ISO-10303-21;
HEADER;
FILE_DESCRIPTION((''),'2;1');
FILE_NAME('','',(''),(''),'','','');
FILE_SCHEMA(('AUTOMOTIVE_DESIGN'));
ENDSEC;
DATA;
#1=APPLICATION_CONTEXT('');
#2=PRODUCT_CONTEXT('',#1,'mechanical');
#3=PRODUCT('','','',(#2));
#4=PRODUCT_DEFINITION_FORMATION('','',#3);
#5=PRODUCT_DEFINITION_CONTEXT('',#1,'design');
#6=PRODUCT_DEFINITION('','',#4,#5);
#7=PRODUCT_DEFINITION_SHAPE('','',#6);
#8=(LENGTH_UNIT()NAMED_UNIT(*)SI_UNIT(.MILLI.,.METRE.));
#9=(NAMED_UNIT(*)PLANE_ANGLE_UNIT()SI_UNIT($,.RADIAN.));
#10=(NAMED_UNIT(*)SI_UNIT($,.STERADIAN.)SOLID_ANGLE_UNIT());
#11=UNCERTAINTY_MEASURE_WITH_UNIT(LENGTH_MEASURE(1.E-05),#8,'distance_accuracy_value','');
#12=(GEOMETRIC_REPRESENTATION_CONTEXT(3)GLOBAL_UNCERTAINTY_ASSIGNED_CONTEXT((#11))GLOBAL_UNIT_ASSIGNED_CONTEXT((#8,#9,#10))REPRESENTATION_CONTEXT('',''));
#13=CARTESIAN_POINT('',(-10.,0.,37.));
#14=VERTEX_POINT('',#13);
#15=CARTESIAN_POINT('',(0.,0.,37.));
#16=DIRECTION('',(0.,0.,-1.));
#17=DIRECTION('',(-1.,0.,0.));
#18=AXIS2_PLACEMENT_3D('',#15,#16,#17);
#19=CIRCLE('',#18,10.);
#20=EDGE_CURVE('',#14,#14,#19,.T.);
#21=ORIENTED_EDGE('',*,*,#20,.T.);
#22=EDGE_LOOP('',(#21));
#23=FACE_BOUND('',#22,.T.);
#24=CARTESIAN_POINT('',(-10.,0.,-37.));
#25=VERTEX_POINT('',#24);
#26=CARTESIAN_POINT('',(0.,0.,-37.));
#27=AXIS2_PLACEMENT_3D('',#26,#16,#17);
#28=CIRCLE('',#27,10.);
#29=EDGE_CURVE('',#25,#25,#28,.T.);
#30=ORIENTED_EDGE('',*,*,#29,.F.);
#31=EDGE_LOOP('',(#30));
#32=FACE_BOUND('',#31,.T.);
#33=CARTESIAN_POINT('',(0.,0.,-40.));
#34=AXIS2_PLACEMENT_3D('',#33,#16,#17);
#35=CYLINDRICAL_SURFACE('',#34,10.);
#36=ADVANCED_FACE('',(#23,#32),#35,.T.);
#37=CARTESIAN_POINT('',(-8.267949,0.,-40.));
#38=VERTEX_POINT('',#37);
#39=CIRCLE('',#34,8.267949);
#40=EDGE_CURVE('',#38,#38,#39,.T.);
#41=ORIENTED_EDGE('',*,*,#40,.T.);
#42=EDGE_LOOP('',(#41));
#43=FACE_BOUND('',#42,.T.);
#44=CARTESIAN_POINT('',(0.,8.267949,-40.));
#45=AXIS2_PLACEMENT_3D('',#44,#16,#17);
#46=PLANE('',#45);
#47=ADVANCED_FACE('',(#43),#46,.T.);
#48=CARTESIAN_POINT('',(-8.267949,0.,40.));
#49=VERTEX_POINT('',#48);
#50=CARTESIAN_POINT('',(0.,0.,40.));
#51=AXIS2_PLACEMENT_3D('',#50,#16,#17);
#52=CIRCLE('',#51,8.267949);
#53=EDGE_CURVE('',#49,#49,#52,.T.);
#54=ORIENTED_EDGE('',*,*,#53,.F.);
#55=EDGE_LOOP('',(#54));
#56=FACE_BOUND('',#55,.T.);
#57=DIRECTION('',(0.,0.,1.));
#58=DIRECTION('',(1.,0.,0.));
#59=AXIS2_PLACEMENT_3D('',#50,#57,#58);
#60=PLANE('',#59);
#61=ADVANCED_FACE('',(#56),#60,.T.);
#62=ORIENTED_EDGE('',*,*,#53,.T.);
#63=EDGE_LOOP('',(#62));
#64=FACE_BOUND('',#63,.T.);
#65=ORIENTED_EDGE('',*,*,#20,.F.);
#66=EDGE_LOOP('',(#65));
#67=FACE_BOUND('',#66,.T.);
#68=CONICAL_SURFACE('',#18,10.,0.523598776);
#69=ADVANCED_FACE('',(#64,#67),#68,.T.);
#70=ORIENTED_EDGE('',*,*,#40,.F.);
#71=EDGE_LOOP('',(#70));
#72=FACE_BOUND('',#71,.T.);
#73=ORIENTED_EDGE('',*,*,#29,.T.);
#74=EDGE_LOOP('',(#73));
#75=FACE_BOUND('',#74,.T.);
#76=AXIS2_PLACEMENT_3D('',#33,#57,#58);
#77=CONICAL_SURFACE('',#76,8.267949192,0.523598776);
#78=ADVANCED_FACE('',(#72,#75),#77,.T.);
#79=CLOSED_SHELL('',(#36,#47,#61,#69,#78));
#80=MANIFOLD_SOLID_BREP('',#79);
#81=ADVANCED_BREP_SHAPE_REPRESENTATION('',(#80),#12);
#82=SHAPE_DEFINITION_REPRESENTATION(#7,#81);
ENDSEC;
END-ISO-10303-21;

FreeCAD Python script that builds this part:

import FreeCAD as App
import Part
import Sketcher
from FreeCAD import Vector
Q = App.Units.Quantity

doc = App.newDocument("Part")
body = doc.addObject("PartDesign::Body", "Body")

sketch1 = body.newObject("Sketcher::SketchObject", "Sketch")
sketch1.AttachmentSupport = (doc.getObject("YZ_Plane"), [""])
sketch1.MapMode = "FlatFace"
sketch1.addGeometry([
    Part.LineSegment(Vector(10, -37, 0), Vector(10, 37, 0)),
    Part.LineSegment(Vector(10, 37, 0), Vector(8.267949, 40, 0)),
    Part.LineSegment(Vector(8.267949, 40, 0), Vector(0, 40, 0)),
    Part.LineSegment(Vector(0, 40, 0), Vector(0, -40, 0)),
    Part.LineSegment(Vector(0, -40, 0), Vector(8.267949, -40, 0)),
    Part.LineSegment(Vector(8.267949, -40, 0), Vector(10, -37, 0)),
], False)
sketch1.addConstraint([
    Sketcher.Constraint("Coincident", 0, 2, 1, 1),
    Sketcher.Constraint("Coincident", 1, 2, 2, 1),
    Sketcher.Constraint("Coincident", 2, 2, 3, 1),
    Sketcher.Constraint("Coincident", 3, 2, 4, 1),
    Sketcher.Constraint("Coincident", 4, 2, 5, 1),
    Sketcher.Constraint("Coincident", 5, 2, 0, 1),
    Sketcher.Constraint("Vertical", 0),
    Sketcher.Constraint("Horizontal", 2),
    Sketcher.Constraint("Vertical", 3),
    Sketcher.Constraint("Horizontal", 4),
    Sketcher.Constraint("Symmetric", 2, 2, 3, 2, -1, 1),
    Sketcher.Constraint("Vertical", 1, 2, 4, 2),
    Sketcher.Constraint("Equal", 1, 5),
    Sketcher.Constraint("DistanceY", 0, 1, 0, 2, Q("74 mm")),
    Sketcher.Constraint("DistanceY", 3, 2, 3, 1, Q("80 mm")),
    Sketcher.Constraint("Angle", 1, Q("120 deg")),
    Sketcher.Constraint("DistanceX", -1, 1, 0, 2, Q("10 mm")),
])
revolution = body.newObject("PartDesign::Revolution", "Revolution")
revolution.Profile = sketch1
revolution.ReferenceAxis = (sketch1, ["V_Axis"])
revolution.Angle = 360

doc.recompute()
